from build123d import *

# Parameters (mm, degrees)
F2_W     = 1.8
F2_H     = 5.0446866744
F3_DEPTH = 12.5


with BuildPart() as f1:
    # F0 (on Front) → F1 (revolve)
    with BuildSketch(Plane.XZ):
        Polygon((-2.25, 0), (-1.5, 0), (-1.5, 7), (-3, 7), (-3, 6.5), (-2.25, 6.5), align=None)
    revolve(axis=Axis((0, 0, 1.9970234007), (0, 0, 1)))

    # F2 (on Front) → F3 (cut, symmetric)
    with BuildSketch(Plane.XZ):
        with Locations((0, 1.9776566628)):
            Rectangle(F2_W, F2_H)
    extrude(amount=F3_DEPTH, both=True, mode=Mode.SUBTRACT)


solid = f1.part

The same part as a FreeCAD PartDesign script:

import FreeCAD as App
import Part
import Sketcher
from FreeCAD import Vector
Q = App.Units.Quantity


def add_polygon(sketch, points):
    """Adds a closed chain of lines whose ends are joined by coincident constraints."""
    first, n = sketch.GeometryCount, len(points)
    for a, b in zip(points, points[1:] + points[:1]):
        sketch.addGeometry(Part.LineSegment(App.Vector(*a, 0), App.Vector(*b, 0)), False)
    for i in range(n):
        sketch.addConstraint(Sketcher.Constraint("Coincident", first + i, 2, first + (i + 1) % n, 1))

doc = App.newDocument("Part")
body = doc.addObject("PartDesign::Body", "Body")

# Sketch on XZ plane
sketch1 = body.newObject("Sketcher::SketchObject", "Sketch")
sketch1.AttachmentSupport = (doc.getObject("XZ_Plane"), [""])
sketch1.MapMode = "FlatFace"
add_polygon(sketch1, [(-2.2, 0), (-1.5, 0), (-1.5, 7), (-3, 7), (-3, 6.5), (-2.2, 6.5)])  # lines 0-5
sketch1.addConstraint([
    Sketcher.Constraint("Horizontal", 0),
    Sketcher.Constraint("Vertical", 1),
    Sketcher.Constraint("Horizontal", 2),
    Sketcher.Constraint("Vertical", 3),
    Sketcher.Constraint("Horizontal", 4),
    Sketcher.Constraint("Vertical", 5),
    Sketcher.Constraint("PointOnObject", 0, 2, -1),
    Sketcher.Constraint("Equal", 0, 4),
    Sketcher.Constraint("DistanceY", 1, 1, 1, 2, Q("7 mm")),
    Sketcher.Constraint("DistanceX", 2, 2, 2, 1, Q("1.5 mm")),
    Sketcher.Constraint("DistanceY", 3, 2, 3, 1, Q("0.5 mm")),
    Sketcher.Constraint("DistanceX", 2, 2, -1, 1, Q("3 mm")),
])
revolution = body.newObject("PartDesign::Revolution", "Revolution")
revolution.Profile = sketch1
revolution.ReferenceAxis = (sketch1, ["V_Axis"])
revolution.Angle = 360

# Sketch on XZ plane
sketch2 = body.newObject("Sketcher::SketchObject", "Sketch001")
sketch2.AttachmentSupport = (doc.getObject("XZ_Plane"), [""])
sketch2.MapMode = "FlatFace"
add_polygon(sketch2, [(-0.9, 4.5), (-0.9, -0.5), (0.9, -0.5), (0.9, 4.5)])  # lines 0-3
sketch2.addConstraint([
    Sketcher.Constraint("Vertical", 0),
    Sketcher.Constraint("Horizontal", 1),
    Sketcher.Constraint("Vertical", 2),
    Sketcher.Constraint("Horizontal", 3),
    Sketcher.Constraint("DistanceX", 1, 1, 1, 2, Q("1.8 mm")),
    Sketcher.Constraint("DistanceX", 0, 2, -1, 1, Q("0.9 mm")),
    Sketcher.Constraint("DistanceY", -1, 1, 2, 2, Q("4.5 mm")),
    Sketcher.Constraint("DistanceY", 0, 2, 0, 1, Q("5.044687 mm")),
])
pocket1 = body.newObject("PartDesign::Pocket", "Pocket")
pocket1.Profile = sketch2
pocket1.Length = 25
pocket1.Midplane = True

doc.recompute()
